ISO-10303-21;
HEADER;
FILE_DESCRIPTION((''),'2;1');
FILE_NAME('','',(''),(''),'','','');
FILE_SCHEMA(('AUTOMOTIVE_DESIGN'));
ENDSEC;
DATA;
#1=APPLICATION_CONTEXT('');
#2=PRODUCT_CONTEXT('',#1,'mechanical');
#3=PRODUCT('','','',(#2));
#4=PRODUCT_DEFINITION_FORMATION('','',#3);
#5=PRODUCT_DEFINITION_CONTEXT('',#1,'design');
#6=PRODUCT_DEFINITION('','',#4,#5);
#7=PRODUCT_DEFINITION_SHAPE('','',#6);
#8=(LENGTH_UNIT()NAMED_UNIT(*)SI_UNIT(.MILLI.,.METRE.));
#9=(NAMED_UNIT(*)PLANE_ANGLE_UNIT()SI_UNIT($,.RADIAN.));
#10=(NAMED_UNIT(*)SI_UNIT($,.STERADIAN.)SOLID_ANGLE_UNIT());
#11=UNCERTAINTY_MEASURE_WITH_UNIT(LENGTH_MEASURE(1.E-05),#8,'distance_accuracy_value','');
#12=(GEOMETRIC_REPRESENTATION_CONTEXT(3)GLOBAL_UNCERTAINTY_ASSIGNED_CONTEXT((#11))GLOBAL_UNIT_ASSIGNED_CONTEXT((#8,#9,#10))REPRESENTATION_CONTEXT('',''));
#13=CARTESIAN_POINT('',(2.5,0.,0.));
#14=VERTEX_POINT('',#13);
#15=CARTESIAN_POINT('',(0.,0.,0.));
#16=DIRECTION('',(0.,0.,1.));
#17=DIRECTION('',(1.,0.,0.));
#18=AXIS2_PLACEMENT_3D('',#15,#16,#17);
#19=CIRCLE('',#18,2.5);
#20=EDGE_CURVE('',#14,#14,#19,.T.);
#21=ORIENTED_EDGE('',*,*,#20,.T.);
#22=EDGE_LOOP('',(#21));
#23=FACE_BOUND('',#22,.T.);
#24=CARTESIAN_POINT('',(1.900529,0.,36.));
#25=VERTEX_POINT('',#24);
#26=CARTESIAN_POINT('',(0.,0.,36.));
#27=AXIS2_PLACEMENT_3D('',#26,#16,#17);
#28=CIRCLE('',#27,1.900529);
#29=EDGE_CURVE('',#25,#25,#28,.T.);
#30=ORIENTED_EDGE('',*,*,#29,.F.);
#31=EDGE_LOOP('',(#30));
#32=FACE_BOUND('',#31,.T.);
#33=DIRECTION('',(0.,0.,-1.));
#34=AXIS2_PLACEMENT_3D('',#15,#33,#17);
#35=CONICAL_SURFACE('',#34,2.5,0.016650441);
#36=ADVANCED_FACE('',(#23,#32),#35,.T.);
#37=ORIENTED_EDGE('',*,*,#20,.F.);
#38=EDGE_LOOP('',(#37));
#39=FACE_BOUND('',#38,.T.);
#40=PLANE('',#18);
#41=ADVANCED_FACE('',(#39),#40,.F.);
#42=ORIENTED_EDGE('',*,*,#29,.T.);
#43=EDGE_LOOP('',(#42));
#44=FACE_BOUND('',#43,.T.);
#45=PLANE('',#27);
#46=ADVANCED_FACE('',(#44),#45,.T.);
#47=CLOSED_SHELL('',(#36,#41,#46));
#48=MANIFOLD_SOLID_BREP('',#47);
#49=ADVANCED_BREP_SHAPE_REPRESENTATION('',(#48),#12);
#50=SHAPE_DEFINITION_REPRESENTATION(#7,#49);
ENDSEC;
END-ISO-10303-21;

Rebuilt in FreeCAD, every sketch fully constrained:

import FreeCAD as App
import Part
import Sketcher
from FreeCAD import Vector
Q = App.Units.Quantity

doc = App.newDocument("Part")
body = doc.addObject("PartDesign::Body", "Body")

# Sketch on XY plane
sketch1 = body.newObject("Sketcher::SketchObject", "Sketch")
sketch1.AttachmentSupport = (doc.getObject("XY_Plane"), [""])
sketch1.MapMode = "FlatFace"
sketch1.addGeometry(Part.Circle(Vector(0, 0, 0), Vector(0, 0, 1), 2.5), False)
sketch1.addConstraint(Sketcher.Constraint("Coincident", 0, 3, -1, 1))
sketch1.addConstraint(Sketcher.Constraint("Diameter", 0, Q("5 mm")))
pad1 = body.newObject("PartDesign::Pad", "Pad")
pad1.Profile = sketch1
pad1.Length = 36
pad1.TaperAngle = -0.954

doc.recompute()
